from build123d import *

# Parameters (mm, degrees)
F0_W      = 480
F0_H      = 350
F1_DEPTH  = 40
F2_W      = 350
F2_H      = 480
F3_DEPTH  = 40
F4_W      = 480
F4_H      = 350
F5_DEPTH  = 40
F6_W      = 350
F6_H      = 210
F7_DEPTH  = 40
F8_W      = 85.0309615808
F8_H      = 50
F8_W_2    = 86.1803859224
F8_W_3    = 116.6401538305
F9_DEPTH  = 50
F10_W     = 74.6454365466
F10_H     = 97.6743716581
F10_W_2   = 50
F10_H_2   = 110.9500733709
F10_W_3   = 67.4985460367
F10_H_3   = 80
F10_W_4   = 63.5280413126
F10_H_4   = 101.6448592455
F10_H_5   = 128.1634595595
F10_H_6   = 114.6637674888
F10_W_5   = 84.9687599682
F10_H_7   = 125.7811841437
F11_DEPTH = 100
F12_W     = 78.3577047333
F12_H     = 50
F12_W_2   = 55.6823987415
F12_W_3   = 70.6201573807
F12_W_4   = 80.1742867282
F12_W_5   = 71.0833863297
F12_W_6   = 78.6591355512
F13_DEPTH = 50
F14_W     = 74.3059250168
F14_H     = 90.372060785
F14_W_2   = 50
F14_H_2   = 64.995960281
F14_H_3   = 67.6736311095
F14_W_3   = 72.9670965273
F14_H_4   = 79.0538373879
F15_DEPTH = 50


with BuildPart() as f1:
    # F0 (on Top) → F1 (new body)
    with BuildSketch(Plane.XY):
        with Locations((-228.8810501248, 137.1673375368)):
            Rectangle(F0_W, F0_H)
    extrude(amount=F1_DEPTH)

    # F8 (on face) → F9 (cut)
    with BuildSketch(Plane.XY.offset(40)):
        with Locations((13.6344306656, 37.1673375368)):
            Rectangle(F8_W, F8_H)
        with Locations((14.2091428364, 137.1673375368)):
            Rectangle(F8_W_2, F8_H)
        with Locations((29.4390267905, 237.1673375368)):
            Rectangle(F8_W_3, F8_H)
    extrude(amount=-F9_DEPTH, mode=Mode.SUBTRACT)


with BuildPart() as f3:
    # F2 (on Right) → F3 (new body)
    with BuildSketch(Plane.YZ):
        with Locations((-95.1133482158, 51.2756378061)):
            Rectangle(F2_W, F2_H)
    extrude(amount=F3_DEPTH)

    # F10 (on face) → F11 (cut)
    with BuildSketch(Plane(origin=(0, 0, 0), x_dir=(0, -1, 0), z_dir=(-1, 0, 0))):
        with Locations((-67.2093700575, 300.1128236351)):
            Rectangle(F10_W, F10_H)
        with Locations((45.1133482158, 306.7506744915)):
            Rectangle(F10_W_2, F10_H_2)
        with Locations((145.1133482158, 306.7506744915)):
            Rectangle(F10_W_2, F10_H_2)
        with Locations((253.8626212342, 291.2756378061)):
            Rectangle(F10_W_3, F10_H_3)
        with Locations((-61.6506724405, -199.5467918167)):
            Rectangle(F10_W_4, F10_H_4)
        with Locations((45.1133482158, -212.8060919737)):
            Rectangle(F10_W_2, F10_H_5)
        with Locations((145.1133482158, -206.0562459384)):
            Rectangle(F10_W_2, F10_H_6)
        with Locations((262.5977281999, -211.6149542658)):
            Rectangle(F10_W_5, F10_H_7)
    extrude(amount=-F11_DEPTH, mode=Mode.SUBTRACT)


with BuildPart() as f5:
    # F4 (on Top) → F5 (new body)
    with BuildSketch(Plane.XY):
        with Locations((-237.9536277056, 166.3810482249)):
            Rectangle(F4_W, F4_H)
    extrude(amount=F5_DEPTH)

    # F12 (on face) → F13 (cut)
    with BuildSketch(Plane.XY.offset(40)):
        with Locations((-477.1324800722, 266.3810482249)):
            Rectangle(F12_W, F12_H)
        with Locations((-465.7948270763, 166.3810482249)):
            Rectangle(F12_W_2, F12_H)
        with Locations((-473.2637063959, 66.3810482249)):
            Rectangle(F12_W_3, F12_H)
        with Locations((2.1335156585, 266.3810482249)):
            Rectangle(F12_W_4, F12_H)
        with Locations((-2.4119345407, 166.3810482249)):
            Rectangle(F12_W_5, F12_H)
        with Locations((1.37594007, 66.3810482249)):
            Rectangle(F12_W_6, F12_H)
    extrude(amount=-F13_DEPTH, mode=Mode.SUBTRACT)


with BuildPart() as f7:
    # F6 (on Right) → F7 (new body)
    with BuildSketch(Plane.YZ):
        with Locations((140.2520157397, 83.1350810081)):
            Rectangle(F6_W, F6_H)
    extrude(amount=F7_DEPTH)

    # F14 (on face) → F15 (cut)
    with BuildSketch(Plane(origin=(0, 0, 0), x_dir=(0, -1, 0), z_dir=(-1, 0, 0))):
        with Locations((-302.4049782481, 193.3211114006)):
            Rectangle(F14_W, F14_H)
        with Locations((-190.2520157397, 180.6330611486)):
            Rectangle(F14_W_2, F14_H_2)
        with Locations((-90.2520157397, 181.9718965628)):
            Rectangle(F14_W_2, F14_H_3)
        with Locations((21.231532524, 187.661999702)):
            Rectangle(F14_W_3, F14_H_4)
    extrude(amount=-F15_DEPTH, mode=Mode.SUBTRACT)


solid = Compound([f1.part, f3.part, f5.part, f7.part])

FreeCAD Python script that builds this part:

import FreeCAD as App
import Part
import Sketcher


def add_polygon(sketch, points):
    """Adds a closed chain of lines whose ends are joined by coincident constraints."""
    first, n = sketch.GeometryCount, len(points)
    for a, b in zip(points, points[1:] + points[:1]):
        sketch.addGeometry(Part.LineSegment(App.Vector(*a, 0), App.Vector(*b, 0)), False)
    for i in range(n):
        sketch.addConstraint(Sketcher.Constraint("Coincident", first + i, 2, first + (i + 1) % n, 1))

doc = App.newDocument("Part")
body = doc.addObject("PartDesign::Body", "Body")

sketch1 = body.newObject("Sketcher::SketchObject", "Sketch")
sketch1.AttachmentSupport = (doc.getObject("XY_Plane"), [""])
sketch1.MapMode = "FlatFace"
add_polygon(sketch1, [(-469, 312), (-469, -38), (11, -38), (11, 312)])
sketch1.addConstraint(Sketcher.Constraint("Vertical", 0))
sketch1.addConstraint(Sketcher.Constraint("Horizontal", 1))
sketch1.addConstraint(Sketcher.Constraint("Vertical", 2))
sketch1.addConstraint(Sketcher.Constraint("Horizontal", 3))
sketch1.addConstraint(Sketcher.Constraint("DistanceX", 1, 1, 1, 2, 480.0))
sketch1.addConstraint(Sketcher.Constraint("DistanceY", 0, 2, 0, 1, 350.0))
sketch1.addConstraint(Sketcher.Constraint("DistanceX", 0, 2, -1, 1, 468.88105))
sketch1.addConstraint(Sketcher.Constraint("DistanceY", 0, 2, -1, 1, 37.832662))
pad1 = body.newObject("PartDesign::Pad", "Pad")
pad1.Profile = sketch1
pad1.Length = 40

sketch2 = body.newObject("Sketcher::SketchObject", "Sketch001")
sketch2.AttachmentSupport = (doc.getObject("XY_Plane"), [""])
sketch2.MapMode = "FlatFace"
sketch2.AttachmentOffset = App.Placement(App.Vector(0, 0, 40), App.Rotation())
add_polygon(sketch2, [(-29, 62), (-29, 12), (56, 12), (56, 62)])
add_polygon(sketch2, [(-29, 162), (-29, 112), (57, 112), (57, 162)])
add_polygon(sketch2, [(-29, 262), (-29, 212), (88, 212), (88, 262)])
sketch2.addConstraint(Sketcher.Constraint("Vertical", 0))
sketch2.addConstraint(Sketcher.Constraint("Horizontal", 1))
sketch2.addConstraint(Sketcher.Constraint("Vertical", 2))
sketch2.addConstraint(Sketcher.Constraint("Horizontal", 3))
sketch2.addConstraint(Sketcher.Constraint("Vertical", 4))
sketch2.addConstraint(Sketcher.Constraint("Horizontal", 5))
sketch2.addConstraint(Sketcher.Constraint("Vertical", 6))
sketch2.addConstraint(Sketcher.Constraint("Horizontal", 7))
sketch2.addConstraint(Sketcher.Constraint("Vertical", 8))
sketch2.addConstraint(Sketcher.Constraint("Horizontal", 9))
sketch2.addConstraint(Sketcher.Constraint("Vertical", 10))
sketch2.addConstraint(Sketcher.Constraint("Horizontal", 11))
sketch2.addConstraint(Sketcher.Constraint("Vertical", 3, 2, 4, 2))
sketch2.addConstraint(Sketcher.Constraint("Vertical", 7, 2, 8, 2))
sketch2.addConstraint(Sketcher.Constraint("Equal", 2, 4))
sketch2.addConstraint(Sketcher.Constraint("Equal", 6, 8))
sketch2.addConstraint(Sketcher.Constraint("DistanceY", 0, 2, 0, 1, 50.0))
sketch2.addConstraint(Sketcher.Constraint("DistanceY", 3, 2, 4, 2, 50.0))
sketch2.addConstraint(Sketcher.Constraint("DistanceY", 7, 2, 8, 2, 50.0))
sketch2.addConstraint(Sketcher.Constraint("DistanceX", 1, 1, 1, 2, 85.030962))
sketch2.addConstraint(Sketcher.Constraint("DistanceX", 5, 1, 5, 2, 86.180386))
sketch2.addConstraint(Sketcher.Constraint("DistanceX", 9, 1, 9, 2, 116.640154))
sketch2.addConstraint(Sketcher.Constraint("DistanceX", 0, 2, -1, 1, 28.88105))
sketch2.addConstraint(Sketcher.Constraint("DistanceY", -1, 1, 0, 2, 12.167338))
pocket1 = body.newObject("PartDesign::Pocket", "Pocket")
pocket1.Profile = sketch2
pocket1.Length = 50
body2 = doc.addObject("PartDesign::Body", "Body001")

sketch3 = body2.newObject("Sketcher::SketchObject", "Sketch002")
sketch3.AttachmentSupport = (doc.getObject("YZ_Plane001"), [""])
sketch3.MapMode = "FlatFace"
add_polygon(sketch3, [(-270, 291), (-270, -189), (80, -189), (80, 291)])
sketch3.addConstraint(Sketcher.Constraint("Vertical", 0))
sketch3.addConstraint(Sketcher.Constraint("Horizontal", 1))
sketch3.addConstraint(Sketcher.Constraint("Vertical", 2))
sketch3.addConstraint(Sketcher.Constraint("Horizontal", 3))
sketch3.addConstraint(Sketcher.Constraint("DistanceX", 1, 1, 1, 2, 350.0))
sketch3.addConstraint(Sketcher.Constraint("DistanceY", 0, 2, 0, 1, 480.0))
sketch3.addConstraint(Sketcher.Constraint("DistanceX", 0, 2, -1, 1, 270.113348))
sketch3.addConstraint(Sketcher.Constraint("DistanceY", 0, 2, -1, 1, 188.724362))
pad2 = body2.newObject("PartDesign::Pad", "Pad001")
pad2.Profile = sketch3
pad2.Length = 40

sketch4 = body2.newObject("Sketcher::SketchObject", "Sketch003")
sketch4.AttachmentSupport = (doc.getObject("YZ_Plane001"), [""])
sketch4.MapMode = "FlatFace"
add_polygon(sketch4, [(105, 349), (105, 251), (30, 251), (30, 349)])
add_polygon(sketch4, [(-20, 362), (-20, 251), (-70, 251), (-70, 362)])
add_polygon(sketch4, [(-120, 362), (-120, 251), (-170, 251), (-170, 362)])
add_polygon(sketch4, [(-220, 331), (-220, 251), (-288, 251), (-288, 331)])
add_polygon(sketch4, [(93, -149), (93, -250), (30, -250), (30, -149)])
add_polygon(sketch4, [(-20, -149), (-20, -277), (-70, -277), (-70, -149)])
add_polygon(sketch4, [(-120, -149), (-120, -263), (-170, -263), (-170, -149)])
add_polygon(sketch4, [(-220, -149), (-220, -275), (-305, -275), (-305, -149)])
sketch4.addConstraint(Sketcher.Constraint("Vertical", 0))
sketch4.addConstraint(Sketcher.Constraint("Horizontal", 1))
sketch4.addConstraint(Sketcher.Constraint("Vertical", 2))
sketch4.addConstraint(Sketcher.Constraint("Horizontal", 3))
sketch4.addConstraint(Sketcher.Constraint("Vertical", 4))
sketch4.addConstraint(Sketcher.Constraint("Horizontal", 5))
sketch4.addConstraint(Sketcher.Constraint("Vertical", 6))
sketch4.addConstraint(Sketcher.Constraint("Horizontal", 7))
sketch4.addConstraint(Sketcher.Constraint("Vertical", 8))
sketch4.addConstraint(Sketcher.Constraint("Horizontal", 9))
sketch4.addConstraint(Sketcher.Constraint("Vertical", 10))
sketch4.addConstraint(Sketcher.Constraint("Horizontal", 11))
sketch4.addConstraint(Sketcher.Constraint("Vertical", 12))
sketch4.addConstraint(Sketcher.Constraint("Horizontal", 13))
sketch4.addConstraint(Sketcher.Constraint("Vertical", 14))
sketch4.addConstraint(Sketcher.Constraint("Horizontal", 15))
sketch4.addConstraint(Sketcher.Constraint("Vertical", 16))
sketch4.addConstraint(Sketcher.Constraint("Horizontal", 17))
sketch4.addConstraint(Sketcher.Constraint("Vertical", 18))
sketch4.addConstraint(Sketcher.Constraint("Horizontal", 19))
sketch4.addConstraint(Sketcher.Constraint("Vertical", 20))
sketch4.addConstraint(Sketcher.Constraint("Horizontal", 21))
sketch4.addConstraint(Sketcher.Constraint("Vertical", 22))
sketch4.addConstraint(Sketcher.Constraint("Horizontal", 23))
sketch4.addConstraint(Sketcher.Constraint("Vertical", 24))
sketch4.addConstraint(Sketcher.Constraint("Horizontal", 25))
sketch4.addConstraint(Sketcher.Constraint("Vertical", 26))
sketch4.addConstraint(Sketcher.Constraint("Horizontal", 27))
sketch4.addConstraint(Sketcher.Constraint("Vertical", 28))
sketch4.addConstraint(Sketcher.Constraint("Horizontal", 29))
sketch4.addConstraint(Sketcher.Constraint("Vertical", 30))
sketch4.addConstraint(Sketcher.Constraint("Horizontal", 31))
sketch4.addConstraint(Sketcher.Constraint("Horizontal", 1, 2, 4, 2))
sketch4.addConstraint(Sketcher.Constraint("Horizontal", 5, 2, 8, 2))
sketch4.addConstraint(Sketcher.Constraint("Horizontal", 7, 2, 10, 2))
sketch4.addConstraint(Sketcher.Constraint("Horizontal", 9, 2, 12, 2))
sketch4.addConstraint(Sketcher.Constraint("Horizontal", 19, 2, 22, 2))
sketch4.addConstraint(Sketcher.Constraint("Horizontal", 23, 2, 26, 2))
sketch4.addConstraint(Sketcher.Constraint("Horizontal", 27, 2, 30, 2))
sketch4.addConstraint(Sketcher.Constraint("Vertical", 2, 2, 17, 2))
sketch4.addConstraint(Sketcher.Constraint("Vertical", 7, 2, 20, 2))
sketch4.addConstraint(Sketcher.Constraint("Vertical", 6, 2, 21, 2))
sketch4.addConstraint(Sketcher.Constraint("Vertical", 11, 2, 24, 2))
sketch4.addConstraint(Sketcher.Constraint("Vertical", 10, 2, 25, 2))
sketch4.addConstraint(Sketcher.Constraint("Vertical", 15, 2, 28, 2))
sketch4.addConstraint(Sketcher.Constraint("Equal", 7, 9))
sketch4.addConstraint(Sketcher.Constraint("DistanceX", 5, 2, 5, 1, 50.0))
sketch4.addConstraint(Sketcher.Constraint("DistanceY", 12, 2, 12, 1, 80.0))
sketch4.addConstraint(Sketcher.Constraint("DistanceX", 4, 2, 1, 2, 50.0))
sketch4.addConstraint(Sketcher.Constraint("DistanceX", 8, 2, 5, 2, 50.0))
sketch4.addConstraint(Sketcher.Constraint("DistanceX", 12, 2, 9, 2, 50.0))
sketch4.addConstraint(Sketcher.Constraint("DistanceY", 18, 2, 1, 2, 400.0))
sketch4.addConstraint(Sketcher.Constraint("DistanceX", 17, 2, 17, 1, 63.528041))
sketch4.addConstraint(Sketcher.Constraint("DistanceX", 29, 2, 29, 1, 84.96876))
sketch4.addConstraint(Sketcher.Constraint("DistanceY", 0, 2, 0, 1, 97.674372))
sketch4.addConstraint(Sketcher.Constraint("DistanceY", 16, 2, 16, 1, 101.644859))
sketch4.addConstraint(Sketcher.Constraint("DistanceY", 20, 2, 20, 1, 128.16346))
sketch4.addConstraint(Sketcher.Constraint("DistanceY", 2, 2, 6, 2, 13.275702))
sketch4.addConstraint(Sketcher.Constraint("DistanceX", 1, 2, 1, 1, 74.645437))
sketch4.addConstraint(Sketcher.Constraint("DistanceX", 13, 2, 13, 1, 67.498546))
sketch4.addConstraint(Sketcher.Constraint("DistanceY", 24, 2, 24, 1, 114.663767))
sketch4.addConstraint(Sketcher.Constraint("DistanceY", 28, 2, 28, 1, 125.781184))
sketch4.addConstraint(Sketcher.Constraint("DistanceX", -1, 1, 0, 2, 104.532088))
sketch4.addConstraint(Sketcher.Constraint("DistanceY", -1, 1, 2, 2, 348.950009))
pocket2 = body2.newObject("PartDesign::Pocket", "Pocket001")
pocket2.Profile = sketch4
pocket2.Length = 100
pocket2.Reversed = True
body3 = doc.addObject("PartDesign::Body", "Body002")

sketch5 = body3.newObject("Sketcher::SketchObject", "Sketch004")
sketch5.AttachmentSupport = (doc.getObject("XY_Plane002"), [""])
sketch5.MapMode = "FlatFace"
add_polygon(sketch5, [(-478, 341), (-478, -9), (2, -9), (2, 341)])
sketch5.addConstraint(Sketcher.Constraint("Vertical", 0))
sketch5.addConstraint(Sketcher.Constraint("Horizontal", 1))
sketch5.addConstraint(Sketcher.Constraint("Vertical", 2))
sketch5.addConstraint(Sketcher.Constraint("Horizontal", 3))
sketch5.addConstraint(Sketcher.Constraint("DistanceX", 1, 1, 1, 2, 480.0))
sketch5.addConstraint(Sketcher.Constraint("DistanceY", 0, 2, 0, 1, 350.0))
sketch5.addConstraint(Sketcher.Constraint("DistanceY", 0, 2, -1, 1, 8.618952))
sketch5.addConstraint(Sketcher.Constraint("DistanceX", 0, 2, -1, 1, 477.953628))
pad3 = body3.newObject("PartDesign::Pad", "Pad002")
pad3.Profile = sketch5
pad3.Length = 40

sketch6 = body3.newObject("Sketcher::SketchObject", "Sketch005")
sketch6.AttachmentSupport = (doc.getObject("XY_Plane002"), [""])
sketch6.MapMode = "FlatFace"
sketch6.AttachmentOffset = App.Placement(App.Vector(0, 0, 40), App.Rotation())
add_polygon(sketch6, [(-516, 291), (-516, 241), (-438, 241), (-438, 291)])
add_polygon(sketch6, [(-494, 191), (-494, 141), (-438, 141), (-438, 191)])
add_polygon(sketch6, [(-509, 91), (-509, 41), (-438, 41), (-438, 91)])
add_polygon(sketch6, [(-38, 291), (-38, 241), (42, 241), (42, 291)])
add_polygon(sketch6, [(-38, 191), (-38, 141), (33, 141), (33, 191)])
add_polygon(sketch6, [(-38, 91), (-38, 41), (41, 41), (41, 91)])
sketch6.addConstraint(Sketcher.Constraint("Vertical", 0))
sketch6.addConstraint(Sketcher.Constraint("Horizontal", 1))
sketch6.addConstraint(Sketcher.Constraint("Vertical", 2))
sketch6.addConstraint(Sketcher.Constraint("Horizontal", 3))
sketch6.addConstraint(Sketcher.Constraint("Vertical", 4))
sketch6.addConstraint(Sketcher.Constraint("Horizontal", 5))
sketch6.addConstraint(Sketcher.Constraint("Vertical", 6))
sketch6.addConstraint(Sketcher.Constraint("Horizontal", 7))
sketch6.addConstraint(Sketcher.Constraint("Vertical", 8))
sketch6.addConstraint(Sketcher.Constraint("Horizontal", 9))
sketch6.addConstraint(Sketcher.Constraint("Vertical", 10))
sketch6.addConstraint(Sketcher.Constraint("Horizontal", 11))
sketch6.addConstraint(Sketcher.Constraint("Vertical", 12))
sketch6.addConstraint(Sketcher.Constraint("Horizontal", 13))
sketch6.addConstraint(Sketcher.Constraint("Vertical", 14))
sketch6.addConstraint(Sketcher.Constraint("Horizontal", 15))
sketch6.addConstraint(Sketcher.Constraint("Vertical", 16))
sketch6.addConstraint(Sketcher.Constraint("Horizontal", 17))
sketch6.addConstraint(Sketcher.Constraint("Vertical", 18))
sketch6.addConstraint(Sketcher.Constraint("Horizontal", 19))
sketch6.addConstraint(Sketcher.Constraint("Vertical", 20))
sketch6.addConstraint(Sketcher.Constraint("Horizontal", 21))
sketch6.addConstraint(Sketcher.Constraint("Vertical", 22))
sketch6.addConstraint(Sketcher.Constraint("Horizontal", 23))
sketch6.addConstraint(Sketcher.Constraint("Horizontal", 1, 2, 12, 2))
sketch6.addConstraint(Sketcher.Constraint("Horizontal", 3, 2, 14, 2))
sketch6.addConstraint(Sketcher.Constraint("Horizontal", 5, 2, 16, 2))
sketch6.addConstraint(Sketcher.Constraint("Horizontal", 7, 2, 18, 2))
sketch6.addConstraint(Sketcher.Constraint("Horizontal", 9, 2, 20, 2))
sketch6.addConstraint(Sketcher.Constraint("Horizontal", 11, 2, 22, 2))
sketch6.addConstraint(Sketcher.Constraint("Vertical", 2, 2, 5, 2))
sketch6.addConstraint(Sketcher.Constraint("Vertical", 6, 2, 9, 2))
sketch6.addConstraint(Sketcher.Constraint("Vertical", 15, 2, 16, 2))
sketch6.addConstraint(Sketcher.Constraint("Vertical", 19, 2, 20, 2))
sketch6.addConstraint(Sketcher.Constraint("Equal", 2, 4))
sketch6.addConstraint(Sketcher.Constraint("Equal", 6, 8))
sketch6.addConstraint(Sketcher.Constraint("DistanceY", 0, 2, 0, 1, 50.0))
sketch6.addConstraint(Sketcher.Constraint("DistanceY", 4, 2, 0, 2, 100.0))
sketch6.addConstraint(Sketcher.Constraint("DistanceY", 8, 2, 4, 2, 100.0))
sketch6.addConstraint(Sketcher.Constraint("DistanceX", 1, 2, 12, 2, 400.0))
sketch6.addConstraint(Sketcher.Constraint("DistanceX", 5, 1, 5, 2, 55.682399))
sketch6.addConstraint(Sketcher.Constraint("DistanceX", 17, 2, 13, 2, 9.0909))
sketch6.addConstraint(Sketcher.Constraint("DistanceX", 1, 1, 1, 2, 78.357705))
sketch6.addConstraint(Sketcher.Constraint("DistanceX", 9, 1, 9, 2, 70.620157))
sketch6.addConstraint(Sketcher.Constraint("DistanceX", 13, 1, 13, 2, 80.174287))
sketch6.addConstraint(Sketcher.Constraint("DistanceX", 21, 1, 21, 2, 78.659136))
sketch6.addConstraint(Sketcher.Constraint("DistanceY", -1, 1, 0, 2, 241.381048))
sketch6.addConstraint(Sketcher.Constraint("DistanceX", -1, 1, 13, 2, 42.220659))
pocket3 = body3.newObject("PartDesign::Pocket", "Pocket002")
pocket3.Profile = sketch6
pocket3.Length = 50
body4 = doc.addObject("PartDesign::Body", "Body003")

sketch7 = body4.newObject("Sketcher::SketchObject", "Sketch006")
sketch7.AttachmentSupport = (doc.getObject("YZ_Plane003"), [""])
sketch7.MapMode = "FlatFace"
add_polygon(sketch7, [(-35, 188), (-35, -22), (315, -22), (315, 188)])
sketch7.addConstraint(Sketcher.Constraint("Vertical", 0))
sketch7.addConstraint(Sketcher.Constraint("Horizontal", 1))
sketch7.addConstraint(Sketcher.Constraint("Vertical", 2))
sketch7.addConstraint(Sketcher.Constraint("Horizontal", 3))
sketch7.addConstraint(Sketcher.Constraint("DistanceX", 1, 1, 1, 2, 350.0))
sketch7.addConstraint(Sketcher.Constraint("DistanceY", 0, 2, 0, 1, 210.0))
sketch7.addConstraint(Sketcher.Constraint("DistanceY", 0, 2, -1, 1, 21.864919))
sketch7.addConstraint(Sketcher.Constraint("DistanceX", 0, 2, -1, 1, 34.747984))
pad4 = body4.newObject("PartDesign::Pad", "Pad003")
pad4.Profile = sketch7
pad4.Length = 40

sketch8 = body4.newObject("Sketcher::SketchObject", "Sketch007")
sketch8.AttachmentSupport = (doc.getObject("YZ_Plane003"), [""])
sketch8.MapMode = "FlatFace"
add_polygon(sketch8, [(340, 239), (340, 148), (265, 148), (265, 239)])
add_polygon(sketch8, [(215, 213), (215, 148), (165, 148), (165, 213)])
add_polygon(sketch8, [(115, 216), (115, 148), (65, 148), (65, 216)])
add_polygon(sketch8, [(15, 227), (15, 148), (-58, 148), (-58, 227)])
sketch8.addConstraint(Sketcher.Constraint("Vertical", 0))
sketch8.addConstraint(Sketcher.Constraint("Horizontal", 1))
sketch8.addConstraint(Sketcher.Constraint("Vertical", 2))
sketch8.addConstraint(Sketcher.Constraint("Horizontal", 3))
sketch8.addConstraint(Sketcher.Constraint("Vertical", 4))
sketch8.addConstraint(Sketcher.Constraint("Horizontal", 5))
sketch8.addConstraint(Sketcher.Constraint("Vertical", 6))
sketch8.addConstraint(Sketcher.Constraint("Horizontal", 7))
sketch8.addConstraint(Sketcher.Constraint("Vertical", 8))
sketch8.addConstraint(Sketcher.Constraint("Horizontal", 9))
sketch8.addConstraint(Sketcher.Constraint("Vertical", 10))
sketch8.addConstraint(Sketcher.Constraint("Horizontal", 11))
sketch8.addConstraint(Sketcher.Constraint("Vertical", 12))
sketch8.addConstraint(Sketcher.Constraint("Horizontal", 13))
sketch8.addConstraint(Sketcher.Constraint("Vertical", 14))
sketch8.addConstraint(Sketcher.Constraint("Horizontal", 15))
sketch8.addConstraint(Sketcher.Constraint("Horizontal", 1, 2, 4, 2))
sketch8.addConstraint(Sketcher.Constraint("Horizontal", 5, 2, 8, 2))
sketch8.addConstraint(Sketcher.Constraint("Horizontal", 9, 2, 12, 2))
sketch8.addConstraint(Sketcher.Constraint("Equal", 7, 9))
sketch8.addConstraint(Sketcher.Constraint("DistanceX", 5, 2, 5, 1, 50.0))
sketch8.addConstraint(Sketcher.Constraint("DistanceX", 4, 2, 1, 2, 50.0))
sketch8.addConstraint(Sketcher.Constraint("DistanceX", 8, 2, 5, 2, 50.0))
sketch8.addConstraint(Sketcher.Constraint("DistanceX", 12, 2, 9, 2, 50.0))
sketch8.addConstraint(Sketcher.Constraint("DistanceY", 0, 2, 0, 1, 90.372061))
sketch8.addConstraint(Sketcher.Constraint("DistanceY", 4, 2, 4, 1, 64.99596))
sketch8.addConstraint(Sketcher.Constraint("DistanceY", 8, 2, 8, 1, 67.673631))
sketch8.addConstraint(Sketcher.Constraint("DistanceX", 1, 2, 1, 1, 74.305925))
sketch8.addConstraint(Sketcher.Constraint("DistanceX", 13, 2, 13, 1, 72.967097))
sketch8.addConstraint(Sketcher.Constraint("DistanceY", 12, 2, 12, 1, 79.053837))
sketch8.addConstraint(Sketcher.Constraint("DistanceX", -1, 1, 0, 2, 339.557941))
sketch8.addConstraint(Sketcher.Constraint("DistanceY", -1, 1, 0, 2, 148.135081))
pocket4 = body4.newObject("PartDesign::Pocket", "Pocket003")
pocket4.Profile = sketch8
pocket4.Length = 50
pocket4.Reversed = True

doc.recompute()
